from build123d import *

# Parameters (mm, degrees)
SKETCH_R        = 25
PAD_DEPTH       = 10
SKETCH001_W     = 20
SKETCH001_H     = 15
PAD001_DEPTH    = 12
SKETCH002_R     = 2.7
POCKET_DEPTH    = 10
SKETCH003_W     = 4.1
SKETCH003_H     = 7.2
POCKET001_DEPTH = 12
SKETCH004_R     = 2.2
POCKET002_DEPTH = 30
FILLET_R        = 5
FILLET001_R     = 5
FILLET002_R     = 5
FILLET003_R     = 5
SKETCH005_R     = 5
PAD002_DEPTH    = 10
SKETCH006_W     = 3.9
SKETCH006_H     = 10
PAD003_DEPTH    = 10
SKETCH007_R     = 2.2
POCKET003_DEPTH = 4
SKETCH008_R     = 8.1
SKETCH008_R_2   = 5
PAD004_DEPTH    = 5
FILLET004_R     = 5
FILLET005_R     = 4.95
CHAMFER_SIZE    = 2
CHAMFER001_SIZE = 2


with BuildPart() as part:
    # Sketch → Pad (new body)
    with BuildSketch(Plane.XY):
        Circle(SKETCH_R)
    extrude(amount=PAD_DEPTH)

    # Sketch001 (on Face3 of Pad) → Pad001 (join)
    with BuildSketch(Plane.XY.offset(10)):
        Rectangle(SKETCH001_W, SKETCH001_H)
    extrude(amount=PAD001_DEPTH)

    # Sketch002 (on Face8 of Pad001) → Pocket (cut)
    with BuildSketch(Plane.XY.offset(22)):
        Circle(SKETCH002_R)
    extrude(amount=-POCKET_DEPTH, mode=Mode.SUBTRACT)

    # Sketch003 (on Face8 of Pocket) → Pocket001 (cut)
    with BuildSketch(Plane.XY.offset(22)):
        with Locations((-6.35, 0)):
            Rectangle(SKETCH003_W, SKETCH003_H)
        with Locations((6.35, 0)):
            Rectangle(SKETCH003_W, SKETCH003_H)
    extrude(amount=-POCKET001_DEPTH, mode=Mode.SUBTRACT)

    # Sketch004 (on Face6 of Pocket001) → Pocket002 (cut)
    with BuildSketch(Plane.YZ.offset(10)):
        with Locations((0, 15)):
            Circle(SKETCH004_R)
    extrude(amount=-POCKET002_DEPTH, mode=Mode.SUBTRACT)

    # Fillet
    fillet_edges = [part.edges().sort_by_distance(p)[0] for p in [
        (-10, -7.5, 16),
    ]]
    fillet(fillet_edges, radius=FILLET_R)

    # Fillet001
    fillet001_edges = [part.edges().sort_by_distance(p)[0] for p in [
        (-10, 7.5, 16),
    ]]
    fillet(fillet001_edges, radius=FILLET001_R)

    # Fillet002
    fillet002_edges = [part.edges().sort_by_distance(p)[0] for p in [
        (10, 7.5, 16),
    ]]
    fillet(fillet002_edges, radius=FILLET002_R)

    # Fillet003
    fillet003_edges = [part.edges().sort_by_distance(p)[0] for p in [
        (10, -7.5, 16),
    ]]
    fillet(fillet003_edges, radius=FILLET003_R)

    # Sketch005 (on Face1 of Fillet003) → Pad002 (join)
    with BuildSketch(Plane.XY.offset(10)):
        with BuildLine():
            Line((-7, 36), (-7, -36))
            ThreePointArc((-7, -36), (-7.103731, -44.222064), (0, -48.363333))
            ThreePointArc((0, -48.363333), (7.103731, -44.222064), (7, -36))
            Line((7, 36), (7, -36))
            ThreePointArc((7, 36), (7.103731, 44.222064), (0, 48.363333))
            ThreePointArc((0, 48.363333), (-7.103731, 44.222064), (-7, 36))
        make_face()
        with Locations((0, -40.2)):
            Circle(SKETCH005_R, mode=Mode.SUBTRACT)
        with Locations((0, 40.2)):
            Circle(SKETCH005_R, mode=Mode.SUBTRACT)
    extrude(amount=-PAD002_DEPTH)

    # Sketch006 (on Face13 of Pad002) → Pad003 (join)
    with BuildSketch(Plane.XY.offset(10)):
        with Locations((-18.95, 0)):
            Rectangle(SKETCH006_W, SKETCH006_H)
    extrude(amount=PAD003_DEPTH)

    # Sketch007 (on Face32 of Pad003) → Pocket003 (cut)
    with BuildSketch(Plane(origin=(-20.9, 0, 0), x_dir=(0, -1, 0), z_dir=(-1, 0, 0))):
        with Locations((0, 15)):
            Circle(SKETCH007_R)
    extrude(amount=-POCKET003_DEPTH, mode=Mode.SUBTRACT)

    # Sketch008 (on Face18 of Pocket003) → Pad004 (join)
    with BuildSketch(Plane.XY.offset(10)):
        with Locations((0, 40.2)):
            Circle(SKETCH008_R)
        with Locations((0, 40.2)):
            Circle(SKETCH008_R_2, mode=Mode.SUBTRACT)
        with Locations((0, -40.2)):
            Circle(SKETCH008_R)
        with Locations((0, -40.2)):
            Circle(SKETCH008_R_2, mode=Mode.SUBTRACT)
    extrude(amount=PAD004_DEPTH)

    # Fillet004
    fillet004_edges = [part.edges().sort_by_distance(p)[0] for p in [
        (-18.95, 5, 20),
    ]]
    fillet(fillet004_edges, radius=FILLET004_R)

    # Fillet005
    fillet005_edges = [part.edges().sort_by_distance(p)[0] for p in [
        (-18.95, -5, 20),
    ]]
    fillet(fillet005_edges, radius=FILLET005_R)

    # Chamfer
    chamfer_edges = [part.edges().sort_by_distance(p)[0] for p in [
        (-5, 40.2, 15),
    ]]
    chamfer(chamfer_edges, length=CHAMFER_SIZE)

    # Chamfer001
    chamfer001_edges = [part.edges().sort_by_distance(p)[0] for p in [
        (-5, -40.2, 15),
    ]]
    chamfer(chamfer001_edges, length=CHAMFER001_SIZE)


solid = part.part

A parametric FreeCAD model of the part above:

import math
import FreeCAD as App
import Part
import Sketcher
from FreeCAD import Vector
Q = App.Units.Quantity


def edges_at(feature, points):
    """Names of the edges that pass closest to the given points."""
    edges = feature.Shape.Edges
    near = lambda p: min(range(len(edges)), key=lambda i: edges[i].distToShape(Part.Vertex(*p))[0])
    return sorted({f"Edge{near(p) + 1}" for p in points})


def add_polygon(sketch, points):
    """Adds a closed chain of lines whose ends are joined by coincident constraints."""
    first, n = sketch.GeometryCount, len(points)
    for a, b in zip(points, points[1:] + points[:1]):
        sketch.addGeometry(Part.LineSegment(App.Vector(*a, 0), App.Vector(*b, 0)), False)
    for i in range(n):
        sketch.addConstraint(Sketcher.Constraint("Coincident", first + i, 2, first + (i + 1) % n, 1))

doc = App.newDocument("Part")
params = doc.addObject("Spreadsheet::Sheet", "Params")
for row, (alias, value) in enumerate([
    ("sketch1_diameter", "50 mm"),
    ("pad1_length", "10 mm"),
    ("sketch2_width", "20 mm"),
    ("sketch2_height", "15 mm"),
    ("pad2_length", "12 mm"),
    ("sketch3_diameter", "5.4 mm"),
    ("pocket1_length", "10 mm"),
    ("sketch4_width", "4.1 mm"),
    ("sketch4_height", "7.2 mm"),
    ("pocket2_length", "12 mm"),
    ("sketch5_diameter", "4.4 mm"),
    ("pocket3_length", "30 mm"),
    ("fillet_radius", "5 mm"),
    ("fillet2_radius", "5 mm"),
    ("fillet3_radius", "5 mm"),
    ("fillet4_radius", "5 mm"),
    ("sketch6_diameter", "10 mm"),
    ("sketch6_height", "72 mm"),
    ("pad3_length", "10 mm"),
    ("sketch7_height", "10 mm"),
    ("sketch7_width", "3.9 mm"),
    ("pad4_length", "10 mm"),
    ("sketch8_diameter", "4.4 mm"),
    ("pocket4_length", "4 mm"),
    ("sketch9_diameter", "10 mm"),
    ("sketch9_diameter2", "16.2 mm"),
    ("pad5_length", "5 mm"),
    ("fillet5_radius", "5 mm"),
    ("fillet6_radius", "4.95 mm"),
    ("chamfer_size", "2 mm"),
    ("chamfer2_size", "2 mm"),
], start=1):
    params.set(f"A{row}", alias)
    params.set(f"B{row}", "=" + value)
    params.setAlias(f"B{row}", alias)

body = doc.addObject("PartDesign::Body", "Body")

sketch1 = body.newObject("Sketcher::SketchObject", "Sketch")
sketch1.AttachmentSupport = (doc.getObject("XY_Plane"), [""])
sketch1.MapMode = "FlatFace"
sketch1.addGeometry(Part.Circle(Vector(0, 0, 0), Vector(0, 0, 1), 25), False)
sketch1.addConstraint([
    Sketcher.Constraint("Coincident", 0, 3, -1, 1),
    Sketcher.Constraint("Diameter", 0, Q("50 mm")),
])
sketch1.setExpression("Constraints[1]", "Params.sketch1_diameter")
pad1 = body.newObject("PartDesign::Pad", "Pad")
pad1.Profile = sketch1
pad1.setExpression("Length", "Params.pad1_length")

sketch2 = body.newObject("Sketcher::SketchObject", "Sketch001")
sketch2.AttachmentSupport = (doc.getObject("XY_Plane"), [""])
sketch2.MapMode = "FlatFace"
sketch2.AttachmentOffset = App.Placement(Vector(0, 0, 10), App.Rotation())
add_polygon(sketch2, [(-10, 8), (-10, -8), (10, -8), (10, 8)])
sketch2.addConstraint([
    Sketcher.Constraint("Vertical", 0),
    Sketcher.Constraint("Horizontal", 1),
    Sketcher.Constraint("Vertical", 2),
    Sketcher.Constraint("Horizontal", 3),
    Sketcher.Constraint("Symmetric", 0, 2, 2, 2, -1, 1),
    Sketcher.Constraint("DistanceX", 1, 1, 1, 2, Q("20 mm")),
    Sketcher.Constraint("DistanceY", 0, 2, 0, 1, Q("15 mm")),
])
sketch2.setExpression("Constraints[9]", "Params.sketch2_width")
sketch2.setExpression("Constraints[10]", "Params.sketch2_height")
pad2 = body.newObject("PartDesign::Pad", "Pad001")
pad2.Profile = sketch2
pad2.setExpression("Length", "Params.pad2_length")

sketch3 = body.newObject("Sketcher::SketchObject", "Sketch002")
sketch3.AttachmentSupport = (doc.getObject("XY_Plane"), [""])
sketch3.MapMode = "FlatFace"
sketch3.AttachmentOffset = App.Placement(Vector(0, 0, 22), App.Rotation())
sketch3.addGeometry(Part.Circle(Vector(0, 0, 0), Vector(0, 0, 1), 2.7), False)
sketch3.addConstraint([
    Sketcher.Constraint("Coincident", 0, 3, -1, 1),
    Sketcher.Constraint("Diameter", 0, Q("5.4 mm")),
])
sketch3.setExpression("Constraints[1]", "Params.sketch3_diameter")
pocket1 = body.newObject("PartDesign::Pocket", "Pocket")
pocket1.Profile = sketch3
pocket1.setExpression("Length", "Params.pocket1_length")

sketch4 = body.newObject("Sketcher::SketchObject", "Sketch003")
sketch4.AttachmentSupport = (doc.getObject("XY_Plane"), [""])
sketch4.MapMode = "FlatFace"
sketch4.AttachmentOffset = App.Placement(Vector(0, 0, 22), App.Rotation())
add_polygon(sketch4, [(-8.4, 3.6), (-8.4, -3.6), (-4.3, -3.6), (-4.3, 3.6)])
add_polygon(sketch4, [(4.3, 3.6), (4.3, -3.6), (8.4, -3.6), (8.4, 3.6)])
sketch4.addConstraint([
    Sketcher.Constraint("Vertical", 0),
    Sketcher.Constraint("Horizontal", 1),
    Sketcher.Constraint("Vertical", 2),
    Sketcher.Constraint("Horizontal", 3),
    Sketcher.Constraint("Vertical", 4),
    Sketcher.Constraint("Horizontal", 5),
    Sketcher.Constraint("Vertical", 6),
    Sketcher.Constraint("Horizontal", 7),
    Sketcher.Constraint("Symmetric", 2, 2, 4, 2, -1, 1),
    Sketcher.Constraint("Symmetric", 0, 2, 6, 2, -1, 1),
    Sketcher.Constraint("Horizontal", 1, 2, 4, 2),
    Sketcher.Constraint("DistanceX", 1, 1, 1, 2, Q("4.1 mm")),
    Sketcher.Constraint("DistanceY", 0, 2, 0, 1, Q("7.2 mm")),
    Sketcher.Constraint("DistanceX", 0, 2, -1, 1, Q("8.4 mm")),
])
sketch4.setExpression("Constraints[19]", "Params.sketch4_width")
sketch4.setExpression("Constraints[20]", "Params.sketch4_height")
pocket2 = body.newObject("PartDesign::Pocket", "Pocket001")
pocket2.Profile = sketch4
pocket2.setExpression("Length", "Params.pocket2_length")

sketch5 = body.newObject("Sketcher::SketchObject", "Sketch004")
sketch5.AttachmentSupport = (doc.getObject("YZ_Plane"), [""])
sketch5.MapMode = "FlatFace"
sketch5.AttachmentOffset = App.Placement(Vector(0, 0, 10), App.Rotation())
sketch5.addGeometry(Part.Circle(Vector(0, 15, 0), Vector(0, 0, 1), 2.2), False)
sketch5.addConstraint([
    Sketcher.Constraint("PointOnObject", 0, 3, -2),
    Sketcher.Constraint("Diameter", 0, Q("4.4 mm")),
    Sketcher.Constraint("DistanceY", -1, 1, 0, 3, Q("15 mm")),
])
sketch5.setExpression("Constraints[1]", "Params.sketch5_diameter")
pocket3 = body.newObject("PartDesign::Pocket", "Pocket002")
pocket3.Profile = sketch5
pocket3.setExpression("Length", "Params.pocket3_length")
doc.recompute()

fillet = body.newObject("PartDesign::Fillet", "Fillet")
fillet.Base = (pocket3, edges_at(pocket3, [(-10, -7.5, 16)]))
fillet.setExpression("Radius", "Params.fillet_radius")
doc.recompute()

fillet2 = body.newObject("PartDesign::Fillet", "Fillet001")
fillet2.Base = (fillet, edges_at(fillet, [(-10, 7.5, 16)]))
fillet2.setExpression("Radius", "Params.fillet2_radius")
doc.recompute()

fillet3 = body.newObject("PartDesign::Fillet", "Fillet002")
fillet3.Base = (fillet2, edges_at(fillet2, [(10, 7.5, 16)]))
fillet3.setExpression("Radius", "Params.fillet3_radius")
doc.recompute()

fillet4 = body.newObject("PartDesign::Fillet", "Fillet003")
fillet4.Base = (fillet3, edges_at(fillet3, [(10, -7.5, 16)]))
fillet4.setExpression("Radius", "Params.fillet4_radius")

sketch6 = body.newObject("Sketcher::SketchObject", "Sketch005")
sketch6.AttachmentSupport = (doc.getObject("XY_Plane"), [""])
sketch6.MapMode = "FlatFace"
sketch6.AttachmentOffset = App.Placement(Vector(0, 0, 10), App.Rotation())
sketch6.addGeometry([
    Part.LineSegment(Vector(-7, 36, 0), Vector(-7, -36, 0)),
    Part.ArcOfCircle(Part.Circle(Vector(0, -40, 0), Vector(0, 0, 1), 8), math.radians(149), math.radians(270)),
    Part.ArcOfCircle(Part.Circle(Vector(0, -40, 0), Vector(0, 0, 1), 8), math.radians(-90), math.radians(31)),
    Part.LineSegment(Vector(7, -36, 0), Vector(7, 36, 0)),
    Part.ArcOfCircle(Part.Circle(Vector(0, 40, 0), Vector(0, 0, 1), 8), math.radians(-31), math.radians(90)),
    Part.ArcOfCircle(Part.Circle(Vector(0, 40, 0), Vector(0, 0, 1), 8), math.radians(90), math.radians(211)),
    Part.Circle(Vector(0, -40, 0), Vector(0, 0, 1), 5),
    Part.Circle(Vector(0, 40, 0), Vector(0, 0, 1), 5),
], False)
sketch6.addConstraint([
    Sketcher.Constraint("Coincident", 0, 2, 1, 1),
    Sketcher.Constraint("Tangent", 1, 2, 2, 1),
    Sketcher.Constraint("Coincident", 2, 2, 3, 1),
    Sketcher.Constraint("Coincident", 3, 2, 4, 1),
    Sketcher.Constraint("Tangent", 4, 2, 5, 1),
    Sketcher.Constraint("Coincident", 5, 2, 0, 1),
    Sketcher.Constraint("Vertical", 0),
    Sketcher.Constraint("Vertical", 3),
    Sketcher.Constraint("Coincident", 6, 3, 1, 3),
    Sketcher.Constraint("Coincident", 7, 3, 4, 3),
    Sketcher.Constraint("Equal", 1, 2),
    Sketcher.Constraint("Equal", 2, 4),
    Sketcher.Constraint("Equal", 4, 5),
    Sketcher.Constraint("Equal", 6, 7),
    Sketcher.Constraint("Symmetric", 1, 3, 4, 3, -1, 1),
    Sketcher.Constraint("Symmetric", 0, 2, 2, 2, -2),
    Sketcher.Constraint("PointOnObject", 1, 2, -2),
    Sketcher.Constraint("PointOnObject", 4, 2, -2),
    Sketcher.Constraint("Diameter", 6, Q("10 mm")),
    Sketcher.Constraint("DistanceY", 0, 2, 0, 1, Q("72 mm")),
    Sketcher.Constraint("DistanceX", 0, 2, -1, 1, Q("7 mm")),
    Sketcher.Constraint("DistanceY", 1, 3, -1, 1, Q("40.2 mm")),
])
sketch6.setExpression("Constraints[18]", "Params.sketch6_diameter")
sketch6.setExpression("Constraints[19]", "Params.sketch6_height")
pad3 = body.newObject("PartDesign::Pad", "Pad002")
pad3.Profile = sketch6
pad3.setExpression("Length", "Params.pad3_length")
pad3.Reversed = True

sketch7 = body.newObject("Sketcher::SketchObject", "Sketch006")
sketch7.AttachmentSupport = (doc.getObject("XY_Plane"), [""])
sketch7.MapMode = "FlatFace"
sketch7.AttachmentOffset = App.Placement(Vector(0, 0, 10), App.Rotation())
add_polygon(sketch7, [(-20.9, 5), (-20.9, -5), (-17, -5), (-17, 5)])
sketch7.addConstraint([
    Sketcher.Constraint("Vertical", 0),
    Sketcher.Constraint("Horizontal", 1),
    Sketcher.Constraint("Vertical", 2),
    Sketcher.Constraint("Horizontal", 3),
    Sketcher.Constraint("DistanceY", 0, 2, 0, 1, Q("10 mm")),
    Sketcher.Constraint("DistanceX", 1, 1, 1, 2, Q("3.9 mm")),
    Sketcher.Constraint("DistanceY", 0, 2, -1, 1, Q("5 mm")),
    Sketcher.Constraint("DistanceX", 1, 2, -1, 1, Q("17 mm")),
])
sketch7.setExpression("Constraints[8]", "Params.sketch7_height")
sketch7.setExpression("Constraints[9]", "Params.sketch7_width")
pad4 = body.newObject("PartDesign::Pad", "Pad003")
pad4.Profile = sketch7
pad4.setExpression("Length", "Params.pad4_length")

sketch8 = body.newObject("Sketcher::SketchObject", "Sketch007")
sketch8.AttachmentSupport = (doc.getObject("YZ_Plane"), [""])
sketch8.MapMode = "FlatFace"
sketch8.AttachmentOffset = App.Placement(Vector(0, 0, -20.9), App.Rotation())
sketch8.addGeometry(Part.Circle(Vector(0, 15, 0), Vector(0, 0, 1), 2.2), False)
sketch8.addConstraint([
    Sketcher.Constraint("PointOnObject", 0, 3, -2),
    Sketcher.Constraint("Diameter", 0, Q("4.4 mm")),
    Sketcher.Constraint("DistanceY", -1, 1, 0, 3, Q("15 mm")),
])
sketch8.setExpression("Constraints[1]", "Params.sketch8_diameter")
pocket4 = body.newObject("PartDesign::Pocket", "Pocket003")
pocket4.Profile = sketch8
pocket4.setExpression("Length", "Params.pocket4_length")
pocket4.Reversed = True

sketch9 = body.newObject("Sketcher::SketchObject", "Sketch008")
sketch9.AttachmentSupport = (doc.getObject("XY_Plane"), [""])
sketch9.MapMode = "FlatFace"
sketch9.AttachmentOffset = App.Placement(Vector(0, 0, 10), App.Rotation())
sketch9.addGeometry([
    Part.Circle(Vector(0, 40, 0), Vector(0, 0, 1), 8),
    Part.Circle(Vector(0, 40, 0), Vector(0, 0, 1), 5),
    Part.Circle(Vector(0, -40, 0), Vector(0, 0, 1), 8),
    Part.Circle(Vector(0, -40, 0), Vector(0, 0, 1), 5),
], False)
sketch9.addConstraint([
    Sketcher.Constraint("Coincident", 1, 3, 0, 3),
    Sketcher.Constraint("Coincident", 3, 3, 2, 3),
    Sketcher.Constraint("Equal", 0, 2),
    Sketcher.Constraint("Equal", 1, 3),
    Sketcher.Constraint("Symmetric", 0, 3, 2, 3, -1, 1),
    Sketcher.Constraint("PointOnObject", 0, 3, -2),
    Sketcher.Constraint("Diameter", 1, Q("10 mm")),
    Sketcher.Constraint("Diameter", 0, Q("16.2 mm")),
    Sketcher.Constraint("DistanceY", -1, 1, 0, 3, Q("40.2 mm")),
])
sketch9.setExpression("Constraints[6]", "Params.sketch9_diameter")
sketch9.setExpression("Constraints[7]", "Params.sketch9_diameter2")
pad5 = body.newObject("PartDesign::Pad", "Pad004")
pad5.Profile = sketch9
pad5.setExpression("Length", "Params.pad5_length")
doc.recompute()

fillet5 = body.newObject("PartDesign::Fillet", "Fillet004")
fillet5.Base = (pad5, edges_at(pad5, [(-18.95, 5, 20)]))
fillet5.setExpression("Radius", "Params.fillet5_radius")
doc.recompute()

fillet6 = body.newObject("PartDesign::Fillet", "Fillet005")
fillet6.Base = (fillet5, edges_at(fillet5, [(-18.95, -5, 20)]))
fillet6.setExpression("Radius", "Params.fillet6_radius")
doc.recompute()

chamfer = body.newObject("PartDesign::Chamfer", "Chamfer")
chamfer.Base = (fillet6, edges_at(fillet6, [(-5, 40.2, 15)]))
chamfer.setExpression("Size", "Params.chamfer_size")
doc.recompute()

chamfer2 = body.newObject("PartDesign::Chamfer", "Chamfer001")
chamfer2.Base = (chamfer, edges_at(chamfer, [(-5, -40.2, 15)]))
chamfer2.setExpression("Size", "Params.chamfer2_size")

doc.recompute()
